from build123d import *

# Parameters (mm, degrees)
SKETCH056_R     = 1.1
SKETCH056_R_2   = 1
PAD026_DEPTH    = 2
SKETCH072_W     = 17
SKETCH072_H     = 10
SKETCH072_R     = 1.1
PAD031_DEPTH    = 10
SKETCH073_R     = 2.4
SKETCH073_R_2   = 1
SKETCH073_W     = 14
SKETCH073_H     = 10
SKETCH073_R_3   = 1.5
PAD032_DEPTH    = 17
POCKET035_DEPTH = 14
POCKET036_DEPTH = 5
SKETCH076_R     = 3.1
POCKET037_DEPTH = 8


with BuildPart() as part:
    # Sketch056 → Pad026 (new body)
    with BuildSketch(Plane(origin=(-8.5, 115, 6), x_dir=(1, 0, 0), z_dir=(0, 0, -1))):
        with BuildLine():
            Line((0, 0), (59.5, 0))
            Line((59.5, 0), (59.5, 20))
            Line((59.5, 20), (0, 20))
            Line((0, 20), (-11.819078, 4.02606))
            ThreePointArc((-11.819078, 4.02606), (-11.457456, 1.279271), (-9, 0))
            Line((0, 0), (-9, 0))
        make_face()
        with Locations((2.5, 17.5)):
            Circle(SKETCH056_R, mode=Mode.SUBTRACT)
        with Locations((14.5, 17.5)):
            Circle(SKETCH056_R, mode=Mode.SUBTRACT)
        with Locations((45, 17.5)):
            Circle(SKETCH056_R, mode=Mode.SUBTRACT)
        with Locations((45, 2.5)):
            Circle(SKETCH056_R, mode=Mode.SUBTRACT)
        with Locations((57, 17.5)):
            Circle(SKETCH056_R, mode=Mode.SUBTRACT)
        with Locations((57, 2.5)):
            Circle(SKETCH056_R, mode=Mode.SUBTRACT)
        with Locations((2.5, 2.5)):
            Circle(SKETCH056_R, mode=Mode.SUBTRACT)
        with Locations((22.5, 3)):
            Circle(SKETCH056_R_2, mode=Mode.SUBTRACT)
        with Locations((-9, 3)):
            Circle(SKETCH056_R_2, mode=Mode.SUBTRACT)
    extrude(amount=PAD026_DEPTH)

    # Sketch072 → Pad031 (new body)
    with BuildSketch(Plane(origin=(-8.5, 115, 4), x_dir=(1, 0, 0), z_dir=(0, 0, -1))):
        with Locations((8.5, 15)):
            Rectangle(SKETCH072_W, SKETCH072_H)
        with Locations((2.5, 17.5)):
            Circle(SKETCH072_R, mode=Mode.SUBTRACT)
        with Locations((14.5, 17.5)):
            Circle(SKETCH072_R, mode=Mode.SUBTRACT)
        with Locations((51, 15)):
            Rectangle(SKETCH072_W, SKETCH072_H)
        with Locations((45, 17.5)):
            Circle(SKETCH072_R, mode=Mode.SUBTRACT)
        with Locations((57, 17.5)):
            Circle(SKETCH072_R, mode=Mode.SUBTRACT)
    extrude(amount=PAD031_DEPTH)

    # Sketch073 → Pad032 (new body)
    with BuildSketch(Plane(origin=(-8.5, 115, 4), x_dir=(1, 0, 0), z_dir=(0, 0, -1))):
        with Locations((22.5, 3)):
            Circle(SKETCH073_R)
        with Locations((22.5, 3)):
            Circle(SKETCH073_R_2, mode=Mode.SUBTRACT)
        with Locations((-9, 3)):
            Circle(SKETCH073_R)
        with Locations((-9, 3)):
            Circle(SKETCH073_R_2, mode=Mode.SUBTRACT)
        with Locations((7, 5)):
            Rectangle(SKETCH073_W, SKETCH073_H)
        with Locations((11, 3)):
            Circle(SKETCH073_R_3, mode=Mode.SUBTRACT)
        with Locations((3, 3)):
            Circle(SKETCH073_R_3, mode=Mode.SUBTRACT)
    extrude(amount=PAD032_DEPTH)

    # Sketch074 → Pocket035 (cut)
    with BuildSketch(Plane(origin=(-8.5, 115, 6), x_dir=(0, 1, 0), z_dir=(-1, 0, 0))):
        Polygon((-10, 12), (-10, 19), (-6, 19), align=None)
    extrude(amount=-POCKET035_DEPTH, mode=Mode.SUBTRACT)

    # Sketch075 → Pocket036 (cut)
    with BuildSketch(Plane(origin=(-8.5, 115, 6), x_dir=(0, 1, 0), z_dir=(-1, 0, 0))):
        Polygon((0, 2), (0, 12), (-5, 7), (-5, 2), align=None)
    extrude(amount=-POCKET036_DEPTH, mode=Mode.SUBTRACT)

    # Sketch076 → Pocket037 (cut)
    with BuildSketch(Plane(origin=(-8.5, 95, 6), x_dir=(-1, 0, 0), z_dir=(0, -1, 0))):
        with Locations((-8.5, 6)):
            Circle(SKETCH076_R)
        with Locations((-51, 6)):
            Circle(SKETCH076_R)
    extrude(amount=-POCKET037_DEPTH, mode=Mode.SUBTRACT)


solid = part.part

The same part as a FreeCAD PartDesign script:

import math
import FreeCAD as App
import Part
import Sketcher
from FreeCAD import Vector


def add_polygon(sketch, points):
    """Adds a closed chain of lines whose ends are joined by coincident constraints."""
    first, n = sketch.GeometryCount, len(points)
    for a, b in zip(points, points[1:] + points[:1]):
        sketch.addGeometry(Part.LineSegment(App.Vector(*a, 0), App.Vector(*b, 0)), False)
    for i in range(n):
        sketch.addConstraint(Sketcher.Constraint("Coincident", first + i, 2, first + (i + 1) % n, 1))

doc = App.newDocument("Part")
body = doc.addObject("PartDesign::Body", "Body")

sketch1 = body.newObject("Sketcher::SketchObject", "Sketch")
sketch1.AttachmentSupport = (doc.getObject("XY_Plane"), [""])
sketch1.MapMode = "FlatFace"
sketch1.AttachmentOffset = App.Placement(Vector(0, 0, 6), App.Rotation())
sketch1.addGeometry([
    Part.LineSegment(Vector(51, 115, 0), Vector(51, 95, 0)),
    Part.LineSegment(Vector(51, 95, 0), Vector(-8.5, 95, 0)),
    Part.LineSegment(Vector(-8.5, 95, 0), Vector(-20.3, 111, 0)),
    Part.ArcOfCircle(Part.Circle(Vector(-17.5, 112, 0), Vector(0, 0, 1), 3), math.radians(90), math.radians(200)),
    Part.LineSegment(Vector(-17.5, 115, 0), Vector(51, 115, 0)),
    Part.Circle(Vector(-17.5, 112, 0), Vector(0, 0, 1), 1),
    Part.Circle(Vector(-6, 112.5, 0), Vector(0, 0, 1), 1.1),
    Part.Circle(Vector(14, 112, 0), Vector(0, 0, 1), 1),
    Part.Circle(Vector(36.5, 112.5, 0), Vector(0, 0, 1), 1.1),
    Part.Circle(Vector(48.5, 112.5, 0), Vector(0, 0, 1), 1.1),
    Part.Circle(Vector(-6, 97.5, 0), Vector(0, 0, 1), 1.1),
    Part.Circle(Vector(6, 97.5, 0), Vector(0, 0, 1), 1.1),
    Part.Circle(Vector(36.5, 97.5, 0), Vector(0, 0, 1), 1.1),
    Part.Circle(Vector(48.5, 97.5, 0), Vector(0, 0, 1), 1.1),
], False)
sketch1.addConstraint([
    Sketcher.Constraint("Coincident", 0, 2, 1, 1),
    Sketcher.Constraint("Coincident", 1, 2, 2, 1),
    Sketcher.Constraint("Coincident", 2, 2, 3, 2),
    Sketcher.Constraint("Tangent", 3, 1, 4, 1),
    Sketcher.Constraint("Coincident", 4, 2, 0, 1),
    Sketcher.Constraint("Vertical", 0),
    Sketcher.Constraint("Horizontal", 1),
    Sketcher.Constraint("Horizontal", 4),
    Sketcher.Constraint("Coincident", 5, 3, 3, 3),
    Sketcher.Constraint("Equal", 5, 7),
    Sketcher.Constraint("Equal", 6, 8),
    Sketcher.Constraint("Equal", 8, 9),
    Sketcher.Constraint("Equal", 9, 10),
    Sketcher.Constraint("Equal", 10, 11),
    Sketcher.Constraint("Equal", 11, 12),
    Sketcher.Constraint("Equal", 12, 13),
    Sketcher.Constraint("Symmetric", 10, 3, 11, 3, -2),
    Sketcher.Constraint("Horizontal", 5, 3, 7, 3),
    Sketcher.Constraint("Horizontal", 6, 3, 8, 3),
    Sketcher.Constraint("Horizontal", 8, 3, 9, 3),
    Sketcher.Constraint("Horizontal", 11, 3, 12, 3),
    Sketcher.Constraint("Horizontal", 12, 3, 13, 3),
    Sketcher.Constraint("Vertical", 6, 3, 10, 3),
    Sketcher.Constraint("Vertical", 8, 3, 12, 3),
    Sketcher.Constraint("Vertical", 9, 3, 13, 3),
    Sketcher.Constraint("Diameter", 5, 2.0),
    Sketcher.Constraint("Radius", 3, 3.0),
    Sketcher.Constraint("Diameter", 6, 2.2),
    Sketcher.Constraint("DistanceY", 0, 2, 0, 1, 20.0),
    Sketcher.Constraint("DistanceX", 1, 2, 1, 1, 59.5),
    Sketcher.Constraint("DistanceX", 4, 1, 4, 2, 68.5),
    Sketcher.Constraint("DistanceY", -1, 1, 3, 3, 112.0),
    Sketcher.Constraint("DistanceX", 6, 3, -1, 1, 6.0),
    Sketcher.Constraint("DistanceX", -1, 1, 7, 3, 14.0),
    Sketcher.Constraint("DistanceX", -1, 1, 0, 2, 51.0),
    Sketcher.Constraint("DistanceX", 3, 3, 8, 3, 53.999999),
    Sketcher.Constraint("DistanceX", 8, 3, 9, 3, 12.0),
    Sketcher.Constraint("DistanceY", 10, 3, 6, 3, 15.0),
    Sketcher.Constraint("DistanceY", -1, 1, 6, 3, 112.5),
    Sketcher.Constraint("Distance", 2, 19.871018),
])
pad1 = body.newObject("PartDesign::Pad", "Pad")
pad1.Profile = sketch1
pad1.Length = 2
pad1.Reversed = True

sketch2 = body.newObject("Sketcher::SketchObject", "Sketch001")
sketch2.AttachmentSupport = (doc.getObject("XY_Plane"), [""])
sketch2.MapMode = "FlatFace"
sketch2.AttachmentOffset = App.Placement(Vector(0, 0, 4), App.Rotation())
add_polygon(sketch2, [(-8.5, 95), (-8.5, 105), (8.5, 105), (8.5, 95)])
sketch2.addGeometry(Part.Circle(Vector(-6, 97.5, 0), Vector(0, 0, 1), 1.1), False)
sketch2.addGeometry(Part.Circle(Vector(6, 97.5, 0), Vector(0, 0, 1), 1.1), False)
add_polygon(sketch2, [(34, 95), (34, 105), (51, 105), (51, 95)])
sketch2.addGeometry(Part.Circle(Vector(36.5, 97.5, 0), Vector(0, 0, 1), 1.1), False)
sketch2.addGeometry(Part.Circle(Vector(48.5, 97.5, 0), Vector(0, 0, 1), 1.1), False)
sketch2.addConstraint([
    Sketcher.Constraint("Vertical", 0),
    Sketcher.Constraint("Horizontal", 1),
    Sketcher.Constraint("Vertical", 2),
    Sketcher.Constraint("Horizontal", 3),
    Sketcher.Constraint("Vertical", 6),
    Sketcher.Constraint("Horizontal", 7),
    Sketcher.Constraint("Vertical", 8),
    Sketcher.Constraint("Horizontal", 9),
    Sketcher.Constraint("Equal", 4, 5),
    Sketcher.Constraint("Equal", 5, 10),
    Sketcher.Constraint("Equal", 10, 11),
    Sketcher.Constraint("Symmetric", 4, 3, 5, 3, -2),
    Sketcher.Constraint("Horizontal", 5, 3, 10, 3),
    Sketcher.Constraint("Horizontal", 10, 3, 11, 3),
    Sketcher.Constraint("Horizontal", 1, 2, 6, 2),
    Sketcher.Constraint("Horizontal", 3, 2, 8, 2),
    Sketcher.Constraint("Equal", 3, 7),
    Sketcher.Constraint("Diameter", 4, 2.2),
    Sketcher.Constraint("DistanceX", 1, 1, 1, 2, 17.0),
    Sketcher.Constraint("DistanceY", 0, 1, 0, 2, 10.0),
    Sketcher.Constraint("DistanceX", 4, 3, -1, 1, 6.0),
    Sketcher.Constraint("DistanceY", -1, 1, 0, 2, 105.0),
    Sketcher.Constraint("DistanceX", -1, 1, 6, 2, 34.0),
    Sketcher.Constraint("DistanceX", 10, 3, 11, 3, 12.0),
    Sketcher.Constraint("DistanceX", 0, 2, 10, 3, 45.0),
    Sketcher.Constraint("DistanceY", -1, 1, 4, 3, 97.5),
    Sketcher.Constraint("DistanceX", -1, 1, 10, 3, 36.5),
])
pad2 = body.newObject("PartDesign::Pad", "Pad001")
pad2.Profile = sketch2
pad2.Length = 10
pad2.Reversed = True

sketch3 = body.newObject("Sketcher::SketchObject", "Sketch002")
sketch3.AttachmentSupport = (doc.getObject("XY_Plane"), [""])
sketch3.MapMode = "FlatFace"
sketch3.AttachmentOffset = App.Placement(Vector(0, 0, 4), App.Rotation())
sketch3.addGeometry(Part.Circle(Vector(14, 112, 0), Vector(0, 0, 1), 2.4), False)
sketch3.addGeometry(Part.Circle(Vector(14, 112, 0), Vector(0, 0, 1), 1), False)
sketch3.addGeometry(Part.Circle(Vector(-17.5, 112, 0), Vector(0, 0, 1), 2.4), False)
sketch3.addGeometry(Part.Circle(Vector(-17.5, 112, 0), Vector(0, 0, 1), 1), False)
add_polygon(sketch3, [(-8.5, 105), (-8.5, 115), (5.5, 115), (5.5, 105)])
sketch3.addGeometry(Part.Circle(Vector(-5.5, 112, 0), Vector(0, 0, 1), 1.5), False)
sketch3.addGeometry(Part.Circle(Vector(2.5, 112, 0), Vector(0, 0, 1), 1.5), False)
sketch3.addConstraint([
    Sketcher.Constraint("Vertical", 4),
    Sketcher.Constraint("Horizontal", 5),
    Sketcher.Constraint("Vertical", 6),
    Sketcher.Constraint("Horizontal", 7),
    Sketcher.Constraint("Coincident", 1, 3, 0, 3),
    Sketcher.Constraint("Coincident", 3, 3, 2, 3),
    Sketcher.Constraint("Equal", 0, 2),
    Sketcher.Constraint("Equal", 1, 3),
    Sketcher.Constraint("Equal", 8, 9),
    Sketcher.Constraint("Horizontal", 1, 3, 2, 3),
    Sketcher.Constraint("Horizontal", 3, 3, 8, 3),
    Sketcher.Constraint("Horizontal", 8, 3, 9, 3),
    Sketcher.Constraint("Diameter", 1, 2.0),
    Sketcher.Constraint("Diameter", 8, 3.0),
    Sketcher.Constraint("Diameter", 0, 4.8),
    Sketcher.Constraint("DistanceX", 5, 1, 5, 2, 14.0),
    Sketcher.Constraint("DistanceY", 4, 1, 4, 2, 10.0),
    Sketcher.Constraint("DistanceX", -1, 1, 0, 3, 14.0),
    Sketcher.Constraint("DistanceY", -1, 1, 0, 3, 112.0),
    Sketcher.Constraint("DistanceY", -1, 1, 4, 2, 115.0),
    Sketcher.Constraint("DistanceX", 2, 3, 8, 3, 12.0),
    Sketcher.Constraint("DistanceX", 8, 3, 9, 3, 8.0),
    Sketcher.Constraint("DistanceX", 4, 2, 8, 3, 3.0),
    Sketcher.Constraint("DistanceX", 2, 3, -1, 1, 17.5),
])
pad3 = body.newObject("PartDesign::Pad", "Pad002")
pad3.Profile = sketch3
pad3.Length = 17
pad3.Reversed = True

sketch4 = body.newObject("Sketcher::SketchObject", "Sketch003")
sketch4.AttachmentSupport = (doc.getObject("YZ_Plane"), [""])
sketch4.MapMode = "FlatFace"
sketch4.AttachmentOffset = App.Placement(Vector(0, 0, -8.5), App.Rotation())
add_polygon(sketch4, [(105, -13), (105, -6), (109, -13)])
sketch4.addConstraint([
    Sketcher.Constraint("Vertical", 0),
    Sketcher.Constraint("Horizontal", 2),
    Sketcher.Constraint("DistanceX", 2, 2, 2, 1, 4.0),
    Sketcher.Constraint("DistanceY", 0, 1, 0, 2, 7.0),
    Sketcher.Constraint("DistanceX", -1, 1, 0, 2, 105.0),
    Sketcher.Constraint("DistanceY", 0, 2, -1, 1, 6.0),
])
pocket1 = body.newObject("PartDesign::Pocket", "Pocket")
pocket1.Profile = sketch4
pocket1.Length = 14
pocket1.Reversed = True

sketch5 = body.newObject("Sketcher::SketchObject", "Sketch004")
sketch5.AttachmentSupport = (doc.getObject("YZ_Plane"), [""])
sketch5.MapMode = "FlatFace"
sketch5.AttachmentOffset = App.Placement(Vector(0, 0, -8.5), App.Rotation())
add_polygon(sketch5, [(115, 4), (115, -6), (110, -1), (110, 4)])
sketch5.addConstraint([
    Sketcher.Constraint("Vertical", 0),
    Sketcher.Constraint("Vertical", 2),
    Sketcher.Constraint("Horizontal", 3),
    Sketcher.Constraint("Equal", 3, 2),
    Sketcher.Constraint("DistanceX", 3, 1, 3, 2, 5.0),
    Sketcher.Constraint("DistanceY", 0, 2, 0, 1, 10.0),
    Sketcher.Constraint("DistanceX", -1, 1, 0, 2, 115.0),
    Sketcher.Constraint("DistanceY", 0, 2, -1, 1, 6.0),
])
pocket2 = body.newObject("PartDesign::Pocket", "Pocket001")
pocket2.Profile = sketch5
pocket2.Length = 5
pocket2.Reversed = True

sketch6 = body.newObject("Sketcher::SketchObject", "Sketch005")
sketch6.AttachmentSupport = (doc.getObject("XZ_Plane"), [""])
sketch6.MapMode = "FlatFace"
sketch6.AttachmentOffset = App.Placement(Vector(0, 0, -95), App.Rotation())
sketch6.addGeometry([
    Part.Circle(Vector(0, 0, 0), Vector(0, 0, 1), 3.1),
    Part.Circle(Vector(42.5, 0, 0), Vector(0, 0, 1), 3.1),
], False)
sketch6.addConstraint([
    Sketcher.Constraint("Coincident", 0, 3, -1, 1),
    Sketcher.Constraint("Equal", 0, 1),
    Sketcher.Constraint("PointOnObject", 1, 3, -1),
    Sketcher.Constraint("Diameter", 0, 6.2),
    Sketcher.Constraint("DistanceX", -1, 1, 1, 3, 42.5),
])
pocket3 = body.newObject("PartDesign::Pocket", "Pocket002")
pocket3.Profile = sketch6
pocket3.Length = 8

doc.recompute()
